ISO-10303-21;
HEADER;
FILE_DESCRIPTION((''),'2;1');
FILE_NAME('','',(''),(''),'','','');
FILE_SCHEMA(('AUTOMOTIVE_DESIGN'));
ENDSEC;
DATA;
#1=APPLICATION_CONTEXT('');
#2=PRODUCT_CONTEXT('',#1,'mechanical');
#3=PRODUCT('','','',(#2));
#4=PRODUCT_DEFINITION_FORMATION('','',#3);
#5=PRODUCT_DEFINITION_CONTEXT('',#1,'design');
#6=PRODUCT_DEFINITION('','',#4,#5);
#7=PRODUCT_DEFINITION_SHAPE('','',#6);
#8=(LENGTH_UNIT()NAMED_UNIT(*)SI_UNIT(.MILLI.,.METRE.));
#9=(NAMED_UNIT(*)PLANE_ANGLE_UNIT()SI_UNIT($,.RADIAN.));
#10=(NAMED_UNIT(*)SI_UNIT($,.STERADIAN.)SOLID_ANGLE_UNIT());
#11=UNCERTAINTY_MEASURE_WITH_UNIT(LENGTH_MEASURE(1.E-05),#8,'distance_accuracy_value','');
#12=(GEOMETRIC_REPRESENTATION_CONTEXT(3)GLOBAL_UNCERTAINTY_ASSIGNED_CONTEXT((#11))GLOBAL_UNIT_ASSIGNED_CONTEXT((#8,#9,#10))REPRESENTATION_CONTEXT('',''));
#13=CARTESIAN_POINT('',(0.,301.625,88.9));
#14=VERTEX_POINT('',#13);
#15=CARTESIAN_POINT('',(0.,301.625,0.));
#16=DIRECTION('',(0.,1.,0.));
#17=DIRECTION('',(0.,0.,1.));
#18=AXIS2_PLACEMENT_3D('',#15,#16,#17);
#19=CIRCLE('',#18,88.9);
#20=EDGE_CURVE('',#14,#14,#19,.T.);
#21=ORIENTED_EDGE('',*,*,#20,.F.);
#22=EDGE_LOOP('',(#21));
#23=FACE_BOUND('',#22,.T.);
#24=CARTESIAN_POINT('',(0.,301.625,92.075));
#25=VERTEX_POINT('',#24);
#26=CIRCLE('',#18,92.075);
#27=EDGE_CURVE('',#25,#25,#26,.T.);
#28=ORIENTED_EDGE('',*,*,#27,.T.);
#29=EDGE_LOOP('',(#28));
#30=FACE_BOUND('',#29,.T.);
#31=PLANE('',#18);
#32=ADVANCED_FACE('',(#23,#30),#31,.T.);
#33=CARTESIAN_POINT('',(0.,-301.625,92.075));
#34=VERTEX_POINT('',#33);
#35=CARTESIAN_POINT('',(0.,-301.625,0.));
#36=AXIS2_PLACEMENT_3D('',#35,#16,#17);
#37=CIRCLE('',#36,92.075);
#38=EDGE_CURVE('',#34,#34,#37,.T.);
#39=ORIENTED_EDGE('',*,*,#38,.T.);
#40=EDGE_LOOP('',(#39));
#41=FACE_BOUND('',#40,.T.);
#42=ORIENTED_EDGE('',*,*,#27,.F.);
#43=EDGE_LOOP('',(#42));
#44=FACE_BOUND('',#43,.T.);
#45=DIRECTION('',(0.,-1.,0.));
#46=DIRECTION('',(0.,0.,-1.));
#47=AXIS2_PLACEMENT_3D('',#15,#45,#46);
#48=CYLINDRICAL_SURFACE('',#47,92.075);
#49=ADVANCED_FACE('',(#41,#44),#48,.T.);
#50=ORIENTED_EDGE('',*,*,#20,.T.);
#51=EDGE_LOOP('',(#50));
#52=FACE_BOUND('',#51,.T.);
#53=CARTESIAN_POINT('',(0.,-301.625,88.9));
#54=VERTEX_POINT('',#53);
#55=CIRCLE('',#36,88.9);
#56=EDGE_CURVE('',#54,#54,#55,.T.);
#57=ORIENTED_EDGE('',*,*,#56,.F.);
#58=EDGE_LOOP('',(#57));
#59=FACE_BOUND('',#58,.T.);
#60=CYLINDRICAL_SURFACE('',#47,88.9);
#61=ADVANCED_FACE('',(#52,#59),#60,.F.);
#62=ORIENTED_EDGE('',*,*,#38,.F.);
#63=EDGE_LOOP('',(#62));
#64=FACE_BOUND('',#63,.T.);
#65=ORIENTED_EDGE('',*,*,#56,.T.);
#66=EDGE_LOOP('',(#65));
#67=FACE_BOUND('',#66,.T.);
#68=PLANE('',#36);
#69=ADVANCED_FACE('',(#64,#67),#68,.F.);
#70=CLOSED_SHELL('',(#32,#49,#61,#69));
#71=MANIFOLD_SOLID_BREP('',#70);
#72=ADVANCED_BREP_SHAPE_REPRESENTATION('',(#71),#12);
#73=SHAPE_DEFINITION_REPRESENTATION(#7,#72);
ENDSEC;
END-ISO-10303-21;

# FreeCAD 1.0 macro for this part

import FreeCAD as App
import Part
import Sketcher
Q = App.Units.Quantity

doc = App.newDocument("Part")
body = doc.addObject("PartDesign::Body", "Body")

sketch1 = body.newObject("Sketcher::SketchObject", "Sketch")
sketch1.AttachmentSupport = (doc.getObject("XZ_Plane"), [""])
sketch1.MapMode = "FlatFace"
sketch1.addGeometry([
    Part.Circle(App.Vector(0, 0, 0), App.Vector(0, 0, 1), 92.075),
    Part.Circle(App.Vector(0, 0, 0), App.Vector(0, 0, 1), 88.9),
], False)
sketch1.addConstraint([
    Sketcher.Constraint("Coincident", 0, 3, -1, 1),
    Sketcher.Constraint("Coincident", 1, 3, -1, 1),
    Sketcher.Constraint("Diameter", 1, Q("7 in")),
    Sketcher.Constraint("Diameter", 0, Q("7.25 in")),
])
pad1 = body.newObject("PartDesign::Pad", "Pad")
pad1.Profile = sketch1
pad1.Length = Q("23.75 in")
pad1.Midplane = True

doc.recompute()
